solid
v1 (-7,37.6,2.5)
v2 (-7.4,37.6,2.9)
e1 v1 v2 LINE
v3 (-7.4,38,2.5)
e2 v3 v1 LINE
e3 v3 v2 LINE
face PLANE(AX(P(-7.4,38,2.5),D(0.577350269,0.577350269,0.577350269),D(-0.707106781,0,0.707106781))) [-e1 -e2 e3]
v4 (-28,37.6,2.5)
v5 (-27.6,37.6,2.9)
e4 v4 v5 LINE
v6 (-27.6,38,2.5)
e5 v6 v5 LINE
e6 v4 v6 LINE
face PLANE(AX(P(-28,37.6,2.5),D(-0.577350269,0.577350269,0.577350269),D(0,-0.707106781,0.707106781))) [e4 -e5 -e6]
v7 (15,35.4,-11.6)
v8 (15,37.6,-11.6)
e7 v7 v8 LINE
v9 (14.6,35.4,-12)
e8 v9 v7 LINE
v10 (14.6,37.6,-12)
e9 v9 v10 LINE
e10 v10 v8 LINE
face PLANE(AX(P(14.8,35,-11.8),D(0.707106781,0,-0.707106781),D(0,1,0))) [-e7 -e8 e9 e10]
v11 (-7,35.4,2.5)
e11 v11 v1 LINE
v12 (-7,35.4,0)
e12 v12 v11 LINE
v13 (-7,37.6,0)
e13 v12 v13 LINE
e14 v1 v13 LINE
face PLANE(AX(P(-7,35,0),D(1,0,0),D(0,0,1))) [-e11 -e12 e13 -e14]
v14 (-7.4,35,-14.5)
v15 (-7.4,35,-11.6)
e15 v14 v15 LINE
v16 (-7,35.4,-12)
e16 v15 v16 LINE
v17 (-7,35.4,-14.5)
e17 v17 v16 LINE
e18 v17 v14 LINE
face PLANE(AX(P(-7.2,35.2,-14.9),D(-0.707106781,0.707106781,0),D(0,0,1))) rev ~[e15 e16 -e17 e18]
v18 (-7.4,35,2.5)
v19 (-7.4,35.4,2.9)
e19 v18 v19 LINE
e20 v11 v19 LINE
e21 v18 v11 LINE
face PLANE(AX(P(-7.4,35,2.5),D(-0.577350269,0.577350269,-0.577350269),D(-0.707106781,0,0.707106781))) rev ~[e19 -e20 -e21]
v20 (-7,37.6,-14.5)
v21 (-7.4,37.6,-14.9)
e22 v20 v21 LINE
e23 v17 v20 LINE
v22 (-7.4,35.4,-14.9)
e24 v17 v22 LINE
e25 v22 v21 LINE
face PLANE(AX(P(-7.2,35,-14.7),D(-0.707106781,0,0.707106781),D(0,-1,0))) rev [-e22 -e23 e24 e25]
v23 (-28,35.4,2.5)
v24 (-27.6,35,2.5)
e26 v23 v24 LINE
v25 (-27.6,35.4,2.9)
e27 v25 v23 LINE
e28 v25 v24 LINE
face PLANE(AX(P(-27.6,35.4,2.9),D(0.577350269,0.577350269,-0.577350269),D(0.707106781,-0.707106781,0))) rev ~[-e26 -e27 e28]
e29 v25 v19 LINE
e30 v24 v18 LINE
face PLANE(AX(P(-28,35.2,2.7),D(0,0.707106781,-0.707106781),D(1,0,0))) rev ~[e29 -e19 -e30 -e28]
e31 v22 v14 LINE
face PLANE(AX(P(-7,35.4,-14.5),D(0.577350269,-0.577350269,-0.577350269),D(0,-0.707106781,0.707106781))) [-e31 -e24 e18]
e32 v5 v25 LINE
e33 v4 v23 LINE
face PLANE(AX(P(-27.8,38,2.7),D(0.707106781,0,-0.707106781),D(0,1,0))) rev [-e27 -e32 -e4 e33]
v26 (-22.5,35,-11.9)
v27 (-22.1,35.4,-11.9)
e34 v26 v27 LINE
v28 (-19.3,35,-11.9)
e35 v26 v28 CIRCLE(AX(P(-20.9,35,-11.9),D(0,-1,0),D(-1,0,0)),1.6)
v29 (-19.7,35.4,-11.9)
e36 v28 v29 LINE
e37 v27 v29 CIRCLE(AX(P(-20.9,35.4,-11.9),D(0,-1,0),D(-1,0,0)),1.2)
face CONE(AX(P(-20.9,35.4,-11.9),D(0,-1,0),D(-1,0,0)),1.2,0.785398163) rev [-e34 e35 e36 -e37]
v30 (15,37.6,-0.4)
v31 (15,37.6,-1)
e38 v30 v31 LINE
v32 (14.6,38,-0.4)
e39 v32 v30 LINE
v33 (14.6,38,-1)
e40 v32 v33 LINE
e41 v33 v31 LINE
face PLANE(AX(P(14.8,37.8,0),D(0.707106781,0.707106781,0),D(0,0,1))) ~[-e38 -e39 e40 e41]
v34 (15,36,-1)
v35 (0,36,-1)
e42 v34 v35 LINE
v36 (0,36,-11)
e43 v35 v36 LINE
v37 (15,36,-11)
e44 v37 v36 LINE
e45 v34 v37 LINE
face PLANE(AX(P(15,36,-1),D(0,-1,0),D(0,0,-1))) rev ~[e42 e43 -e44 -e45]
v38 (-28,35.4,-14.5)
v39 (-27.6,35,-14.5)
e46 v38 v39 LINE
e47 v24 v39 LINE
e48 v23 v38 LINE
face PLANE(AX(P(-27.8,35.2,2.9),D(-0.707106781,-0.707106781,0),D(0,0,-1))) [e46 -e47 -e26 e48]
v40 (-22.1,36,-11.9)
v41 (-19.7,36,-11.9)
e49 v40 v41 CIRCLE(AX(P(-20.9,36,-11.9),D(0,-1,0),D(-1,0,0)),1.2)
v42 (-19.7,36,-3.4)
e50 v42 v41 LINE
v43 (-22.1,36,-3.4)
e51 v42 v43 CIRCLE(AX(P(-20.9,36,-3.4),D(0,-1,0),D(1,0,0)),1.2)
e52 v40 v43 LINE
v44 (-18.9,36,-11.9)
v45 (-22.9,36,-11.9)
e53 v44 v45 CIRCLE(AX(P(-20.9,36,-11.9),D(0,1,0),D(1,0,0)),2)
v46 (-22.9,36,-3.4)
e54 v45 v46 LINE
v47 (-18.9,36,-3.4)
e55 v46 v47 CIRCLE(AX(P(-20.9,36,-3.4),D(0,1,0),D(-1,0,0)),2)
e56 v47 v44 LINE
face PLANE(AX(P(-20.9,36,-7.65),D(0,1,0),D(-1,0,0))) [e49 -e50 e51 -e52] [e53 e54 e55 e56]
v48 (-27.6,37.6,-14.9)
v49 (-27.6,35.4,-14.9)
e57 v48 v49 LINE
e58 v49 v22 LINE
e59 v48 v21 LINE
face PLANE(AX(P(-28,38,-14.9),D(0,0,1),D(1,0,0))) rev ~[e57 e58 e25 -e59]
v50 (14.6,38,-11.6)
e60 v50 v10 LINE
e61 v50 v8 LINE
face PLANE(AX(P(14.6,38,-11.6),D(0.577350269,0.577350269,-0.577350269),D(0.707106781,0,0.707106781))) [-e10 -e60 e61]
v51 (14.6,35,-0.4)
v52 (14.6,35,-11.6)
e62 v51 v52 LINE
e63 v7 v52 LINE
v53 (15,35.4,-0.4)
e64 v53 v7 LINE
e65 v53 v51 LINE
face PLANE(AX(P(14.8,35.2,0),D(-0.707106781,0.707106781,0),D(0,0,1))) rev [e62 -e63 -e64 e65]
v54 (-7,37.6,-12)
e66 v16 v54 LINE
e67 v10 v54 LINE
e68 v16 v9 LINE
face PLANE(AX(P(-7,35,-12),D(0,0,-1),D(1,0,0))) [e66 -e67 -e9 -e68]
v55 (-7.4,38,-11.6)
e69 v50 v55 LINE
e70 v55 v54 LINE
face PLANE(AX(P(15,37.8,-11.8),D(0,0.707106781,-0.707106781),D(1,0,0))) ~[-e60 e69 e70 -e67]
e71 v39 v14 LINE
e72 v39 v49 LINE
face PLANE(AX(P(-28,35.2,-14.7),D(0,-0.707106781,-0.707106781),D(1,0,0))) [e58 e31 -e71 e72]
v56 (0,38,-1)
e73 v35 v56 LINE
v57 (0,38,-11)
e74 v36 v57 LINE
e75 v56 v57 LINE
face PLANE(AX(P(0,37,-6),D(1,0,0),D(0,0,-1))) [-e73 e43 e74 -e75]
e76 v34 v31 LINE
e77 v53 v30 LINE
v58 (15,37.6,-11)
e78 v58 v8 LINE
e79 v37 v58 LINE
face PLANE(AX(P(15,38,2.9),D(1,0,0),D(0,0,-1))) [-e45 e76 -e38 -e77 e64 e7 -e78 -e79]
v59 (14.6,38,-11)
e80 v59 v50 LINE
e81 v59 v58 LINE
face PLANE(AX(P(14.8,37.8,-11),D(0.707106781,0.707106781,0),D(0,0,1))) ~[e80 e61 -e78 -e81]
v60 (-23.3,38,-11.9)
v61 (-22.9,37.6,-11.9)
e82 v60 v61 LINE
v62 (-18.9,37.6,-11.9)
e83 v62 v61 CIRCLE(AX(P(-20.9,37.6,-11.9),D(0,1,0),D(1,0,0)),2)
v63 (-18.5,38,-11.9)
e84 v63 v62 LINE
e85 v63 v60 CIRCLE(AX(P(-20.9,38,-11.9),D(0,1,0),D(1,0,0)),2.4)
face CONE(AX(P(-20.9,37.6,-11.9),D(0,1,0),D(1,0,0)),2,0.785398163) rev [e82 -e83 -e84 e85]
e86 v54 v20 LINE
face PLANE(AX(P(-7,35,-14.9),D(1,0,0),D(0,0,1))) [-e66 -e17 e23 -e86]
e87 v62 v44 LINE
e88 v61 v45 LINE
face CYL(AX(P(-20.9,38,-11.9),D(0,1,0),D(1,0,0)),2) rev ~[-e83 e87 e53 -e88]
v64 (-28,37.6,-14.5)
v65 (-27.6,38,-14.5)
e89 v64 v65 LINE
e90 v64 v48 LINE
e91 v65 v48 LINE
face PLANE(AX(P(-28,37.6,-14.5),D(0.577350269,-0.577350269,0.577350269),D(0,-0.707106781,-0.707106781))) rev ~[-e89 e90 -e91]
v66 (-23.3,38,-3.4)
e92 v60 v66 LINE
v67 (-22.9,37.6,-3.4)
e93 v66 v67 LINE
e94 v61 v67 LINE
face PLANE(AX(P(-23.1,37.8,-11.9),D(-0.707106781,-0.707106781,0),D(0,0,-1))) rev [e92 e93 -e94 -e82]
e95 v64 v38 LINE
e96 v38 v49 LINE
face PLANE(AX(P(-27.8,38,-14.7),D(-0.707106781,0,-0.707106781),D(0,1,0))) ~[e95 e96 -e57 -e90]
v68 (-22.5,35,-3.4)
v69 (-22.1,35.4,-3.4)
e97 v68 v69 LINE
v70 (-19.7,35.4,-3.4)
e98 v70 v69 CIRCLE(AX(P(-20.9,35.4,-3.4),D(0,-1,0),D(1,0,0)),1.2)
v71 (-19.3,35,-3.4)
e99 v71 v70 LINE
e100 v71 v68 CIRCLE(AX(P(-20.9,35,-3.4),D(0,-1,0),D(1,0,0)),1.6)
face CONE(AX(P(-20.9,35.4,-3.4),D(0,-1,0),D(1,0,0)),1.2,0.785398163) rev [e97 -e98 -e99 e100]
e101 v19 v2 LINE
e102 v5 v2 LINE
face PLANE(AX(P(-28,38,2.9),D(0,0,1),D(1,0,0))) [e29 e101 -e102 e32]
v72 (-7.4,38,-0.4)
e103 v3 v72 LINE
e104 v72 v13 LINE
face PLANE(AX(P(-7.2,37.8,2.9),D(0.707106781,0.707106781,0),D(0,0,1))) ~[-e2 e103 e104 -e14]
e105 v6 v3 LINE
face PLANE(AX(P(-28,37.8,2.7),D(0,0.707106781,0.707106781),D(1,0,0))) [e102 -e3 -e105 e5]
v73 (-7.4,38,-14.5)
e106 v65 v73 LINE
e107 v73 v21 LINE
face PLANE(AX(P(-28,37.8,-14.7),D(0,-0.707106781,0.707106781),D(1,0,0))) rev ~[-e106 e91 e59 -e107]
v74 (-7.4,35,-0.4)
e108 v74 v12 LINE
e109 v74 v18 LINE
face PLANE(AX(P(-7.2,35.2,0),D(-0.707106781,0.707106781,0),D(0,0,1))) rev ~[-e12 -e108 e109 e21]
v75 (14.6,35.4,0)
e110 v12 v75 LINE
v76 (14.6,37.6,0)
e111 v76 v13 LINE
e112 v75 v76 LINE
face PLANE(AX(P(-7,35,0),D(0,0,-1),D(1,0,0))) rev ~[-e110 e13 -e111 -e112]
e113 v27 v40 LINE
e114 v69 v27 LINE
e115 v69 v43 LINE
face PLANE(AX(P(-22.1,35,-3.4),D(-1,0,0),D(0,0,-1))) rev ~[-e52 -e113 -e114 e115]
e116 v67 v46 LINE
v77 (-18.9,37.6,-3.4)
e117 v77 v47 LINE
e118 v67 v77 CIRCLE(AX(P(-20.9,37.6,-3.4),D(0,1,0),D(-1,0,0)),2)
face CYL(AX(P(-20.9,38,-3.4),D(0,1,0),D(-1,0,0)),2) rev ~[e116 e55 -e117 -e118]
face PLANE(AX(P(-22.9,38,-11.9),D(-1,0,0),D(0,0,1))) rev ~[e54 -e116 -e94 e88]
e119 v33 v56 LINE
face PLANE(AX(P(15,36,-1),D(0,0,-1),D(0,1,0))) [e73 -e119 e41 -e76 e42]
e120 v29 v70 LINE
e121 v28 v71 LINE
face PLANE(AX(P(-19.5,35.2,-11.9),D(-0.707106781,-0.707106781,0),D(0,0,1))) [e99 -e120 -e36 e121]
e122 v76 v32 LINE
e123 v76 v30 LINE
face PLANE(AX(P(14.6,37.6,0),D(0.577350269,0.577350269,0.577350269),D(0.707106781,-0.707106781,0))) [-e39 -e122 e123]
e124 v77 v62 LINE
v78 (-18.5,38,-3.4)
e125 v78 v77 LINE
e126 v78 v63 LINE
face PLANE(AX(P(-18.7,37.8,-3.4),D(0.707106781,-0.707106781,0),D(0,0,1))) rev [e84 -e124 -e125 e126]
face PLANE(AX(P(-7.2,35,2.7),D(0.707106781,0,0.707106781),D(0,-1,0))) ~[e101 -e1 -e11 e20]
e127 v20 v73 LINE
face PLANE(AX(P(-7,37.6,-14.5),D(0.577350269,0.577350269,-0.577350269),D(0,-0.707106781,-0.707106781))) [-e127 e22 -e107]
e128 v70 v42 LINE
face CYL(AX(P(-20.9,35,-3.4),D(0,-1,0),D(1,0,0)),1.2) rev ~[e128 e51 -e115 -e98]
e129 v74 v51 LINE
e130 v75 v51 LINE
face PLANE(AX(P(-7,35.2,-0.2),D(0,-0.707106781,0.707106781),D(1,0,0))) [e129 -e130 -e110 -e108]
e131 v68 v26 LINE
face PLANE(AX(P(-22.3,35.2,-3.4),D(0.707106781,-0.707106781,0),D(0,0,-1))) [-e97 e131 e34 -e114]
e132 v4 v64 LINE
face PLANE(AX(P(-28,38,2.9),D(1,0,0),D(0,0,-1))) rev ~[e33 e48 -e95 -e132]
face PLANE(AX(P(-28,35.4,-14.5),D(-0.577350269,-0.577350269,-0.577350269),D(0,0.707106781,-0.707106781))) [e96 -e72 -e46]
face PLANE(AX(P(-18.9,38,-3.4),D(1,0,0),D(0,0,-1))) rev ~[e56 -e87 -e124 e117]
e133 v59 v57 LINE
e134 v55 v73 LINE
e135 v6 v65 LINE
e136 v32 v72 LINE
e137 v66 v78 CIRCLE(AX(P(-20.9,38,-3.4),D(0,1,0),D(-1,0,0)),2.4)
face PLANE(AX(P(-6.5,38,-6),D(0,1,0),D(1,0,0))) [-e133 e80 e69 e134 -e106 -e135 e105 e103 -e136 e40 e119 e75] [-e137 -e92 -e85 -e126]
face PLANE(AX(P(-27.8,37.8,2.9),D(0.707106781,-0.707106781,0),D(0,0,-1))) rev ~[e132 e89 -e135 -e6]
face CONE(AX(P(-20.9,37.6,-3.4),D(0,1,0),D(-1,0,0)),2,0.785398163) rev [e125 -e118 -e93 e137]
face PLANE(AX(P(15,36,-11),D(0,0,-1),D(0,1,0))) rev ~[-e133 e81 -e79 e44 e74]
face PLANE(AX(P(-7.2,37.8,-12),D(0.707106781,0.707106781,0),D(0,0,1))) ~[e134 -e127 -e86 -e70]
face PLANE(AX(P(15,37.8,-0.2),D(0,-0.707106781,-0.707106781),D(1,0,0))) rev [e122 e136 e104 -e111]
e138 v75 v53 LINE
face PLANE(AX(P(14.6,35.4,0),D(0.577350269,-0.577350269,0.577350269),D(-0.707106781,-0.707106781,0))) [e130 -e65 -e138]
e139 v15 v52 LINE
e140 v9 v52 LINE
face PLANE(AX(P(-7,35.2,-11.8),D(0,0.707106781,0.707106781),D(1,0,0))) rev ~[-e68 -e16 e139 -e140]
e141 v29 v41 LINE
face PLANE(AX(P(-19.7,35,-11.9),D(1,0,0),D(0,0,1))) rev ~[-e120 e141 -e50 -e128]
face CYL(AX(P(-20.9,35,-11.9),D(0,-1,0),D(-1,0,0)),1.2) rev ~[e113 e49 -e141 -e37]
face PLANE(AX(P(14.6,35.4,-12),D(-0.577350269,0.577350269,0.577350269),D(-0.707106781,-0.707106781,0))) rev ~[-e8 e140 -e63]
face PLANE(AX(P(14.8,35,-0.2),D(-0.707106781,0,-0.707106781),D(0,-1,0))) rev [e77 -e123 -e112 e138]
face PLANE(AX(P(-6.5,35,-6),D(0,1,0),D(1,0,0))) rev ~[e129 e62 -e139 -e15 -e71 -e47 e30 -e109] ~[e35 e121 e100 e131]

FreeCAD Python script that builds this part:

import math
import FreeCAD as App
import Part
import Sketcher


def edges_at(feature, points):
    """Names of the edges that pass closest to the given points."""
    edges = feature.Shape.Edges
    near = lambda p: min(range(len(edges)), key=lambda i: edges[i].distToShape(Part.Vertex(*p))[0])
    return sorted({f"Edge{near(p) + 1}" for p in points})

doc = App.newDocument("Part")
params = doc.addObject("Spreadsheet::Sheet", "Params")
for row, (alias, value) in enumerate([
    ("sketch1_width", "43 mm"),
    ("sketch1_height", "17.8 mm"),
    ("pad1_length", "3 mm"),
    ("sketch2_width", "22 mm"),
    ("sketch2_height", "2.9 mm"),
    ("sketch3_width", "22 mm"),
    ("sketch3_height", "2.9 mm"),
    ("sketch4_radius", "2 mm"),
    ("sketch4_height", "8.5 mm"),
    ("pocket3_length", "2 mm"),
    ("sketch5_radius", "1.2 mm"),
    ("sketch5_height", "8.5 mm"),
    ("sketch6_width", "2 mm"),
    ("sketch6_height", "10 mm"),
    ("pocket5_length", "15 mm"),
    ("chamfer_size", "0.4 mm"),
], start=1):
    params.set(f"A{row}", alias)
    params.set(f"B{row}", "=" + value)
    params.setAlias(f"B{row}", alias)

body = doc.addObject("PartDesign::Body", "Body")

# Sketch on XZ plane
sketch1 = doc.addObject("Sketcher::SketchObject", "Sketch")
body.addObject(sketch1)
sketch1.AttachmentSupport = (doc.XZ_Plane, [""])
sketch1.MapMode = "FlatFace"
sketch1.AttachmentOffset = App.Placement(App.Vector(0, 0, -38), App.Rotation())
sketch1.addGeometry([
    Part.LineSegment(App.Vector(-28, -14.9, 0), App.Vector(-28, 2.9, 0)),
    Part.LineSegment(App.Vector(-28, 2.9, 0), App.Vector(15, 2.9, 0)),
    Part.LineSegment(App.Vector(15, 2.9, 0), App.Vector(15, -14.9, 0)),
    Part.LineSegment(App.Vector(15, -14.9, 0), App.Vector(-28, -14.9, 0)),
], False)
sketch1.addConstraint([
    Sketcher.Constraint("Coincident", 0, 2, 1, 1),
    Sketcher.Constraint("Coincident", 1, 2, 2, 1),
    Sketcher.Constraint("Coincident", 2, 2, 3, 1),
    Sketcher.Constraint("Coincident", 3, 2, 0, 1),
    Sketcher.Constraint("Vertical", 0),
    Sketcher.Constraint("Horizontal", 1),
    Sketcher.Constraint("Vertical", 2),
    Sketcher.Constraint("Horizontal", 3),
    Sketcher.Constraint("DistanceX", 1, 1, 1, 2, 43.0),
    Sketcher.Constraint("DistanceY", 0, 1, 0, 2, 17.8),
    Sketcher.Constraint("DistanceX", 0, 2, -1, 1, 28.0),
    Sketcher.Constraint("DistanceY", -1, 1, 0, 2, 2.9),
])
sketch1.setExpression("Constraints[8]", "Params.sketch1_width")
sketch1.setExpression("Constraints[9]", "Params.sketch1_height")
pad1 = doc.addObject("PartDesign::Pad", "Pad")
body.addObject(pad1)
pad1.Profile = sketch1
pad1.setExpression("Length", "Params.pad1_length")

# Sketch on XZ plane
sketch2 = doc.addObject("Sketcher::SketchObject", "Sketch001")
body.addObject(sketch2)
sketch2.AttachmentSupport = (doc.XZ_Plane, [""])
sketch2.MapMode = "FlatFace"
sketch2.AttachmentOffset = App.Placement(App.Vector(0, 0, -35), App.Rotation())
sketch2.addGeometry([
    Part.LineSegment(App.Vector(-7, 2.9, 0), App.Vector(-7, 0, 0)),
    Part.LineSegment(App.Vector(-7, 0, 0), App.Vector(15, 0, 0)),
    Part.LineSegment(App.Vector(15, 0, 0), App.Vector(15, 2.9, 0)),
    Part.LineSegment(App.Vector(15, 2.9, 0), App.Vector(-7, 2.9, 0)),
], False)
sketch2.addConstraint([
    Sketcher.Constraint("Coincident", 0, 2, 1, 1),
    Sketcher.Constraint("Coincident", 1, 2, 2, 1),
    Sketcher.Constraint("Coincident", 2, 2, 3, 1),
    Sketcher.Constraint("Coincident", 3, 2, 0, 1),
    Sketcher.Constraint("Vertical", 0),
    Sketcher.Constraint("Horizontal", 1),
    Sketcher.Constraint("Vertical", 2),
    Sketcher.Constraint("Horizontal", 3),
    Sketcher.Constraint("PointOnObject", 0, 2, -1),
    Sketcher.Constraint("DistanceX", 1, 1, 1, 2, 22.0),
    Sketcher.Constraint("DistanceY", 0, 2, 0, 1, 2.9),
    Sketcher.Constraint("DistanceX", 0, 2, -1, 1, 7.0),
])
sketch2.setExpression("Constraints[9]", "Params.sketch2_width")
sketch2.setExpression("Constraints[10]", "Params.sketch2_height")
pocket1 = doc.addObject("PartDesign::Pocket", "Pocket")
body.addObject(pocket1)
pocket1.Profile = sketch2
pocket1.Type = "ThroughAll"

# Sketch on XZ plane
sketch3 = doc.addObject("Sketcher::SketchObject", "Sketch002")
body.addObject(sketch3)
sketch3.AttachmentSupport = (doc.XZ_Plane, [""])
sketch3.MapMode = "FlatFace"
sketch3.AttachmentOffset = App.Placement(App.Vector(0, 0, -35), App.Rotation())
sketch3.addGeometry([
    Part.LineSegment(App.Vector(-7, -12, 0), App.Vector(-7, -14.9, 0)),
    Part.LineSegment(App.Vector(-7, -14.9, 0), App.Vector(15, -14.9, 0)),
    Part.LineSegment(App.Vector(15, -14.9, 0), App.Vector(15, -12, 0)),
    Part.LineSegment(App.Vector(15, -12, 0), App.Vector(-7, -12, 0)),
], False)
sketch3.addConstraint([
    Sketcher.Constraint("Coincident", 0, 2, 1, 1),
    Sketcher.Constraint("Coincident", 1, 2, 2, 1),
    Sketcher.Constraint("Coincident", 2, 2, 3, 1),
    Sketcher.Constraint("Coincident", 3, 2, 0, 1),
    Sketcher.Constraint("Vertical", 0),
    Sketcher.Constraint("Horizontal", 1),
    Sketcher.Constraint("Vertical", 2),
    Sketcher.Constraint("Horizontal", 3),
    Sketcher.Constraint("DistanceX", 1, 1, 1, 2, 22.0),
    Sketcher.Constraint("DistanceY", 0, 2, 0, 1, 2.9),
    Sketcher.Constraint("DistanceX", 0, 2, -1, 1, 7.0),
    Sketcher.Constraint("DistanceY", 2, 2, -1, 1, 12.0),
])
sketch3.setExpression("Constraints[8]", "Params.sketch3_width")
sketch3.setExpression("Constraints[9]", "Params.sketch3_height")
pocket2 = doc.addObject("PartDesign::Pocket", "Pocket001")
body.addObject(pocket2)
pocket2.Profile = sketch3
pocket2.Type = "ThroughAll"

# Sketch on XZ plane
sketch4 = doc.addObject("Sketcher::SketchObject", "Sketch003")
body.addObject(sketch4)
sketch4.AttachmentSupport = (doc.XZ_Plane, [""])
sketch4.MapMode = "FlatFace"
sketch4.AttachmentOffset = App.Placement(App.Vector(0, 0, -38), App.Rotation())
sketch4.addGeometry([
    Part.LineSegment(App.Vector(-22.9, -11.9, 0), App.Vector(-22.9, -3.4, 0)),
    Part.ArcOfCircle(Part.Circle(App.Vector(-20.9, -3.4, 0), App.Vector(0, 0, 1), 2), math.radians(0), math.radians(180)),
    Part.LineSegment(App.Vector(-18.9, -3.4, 0), App.Vector(-18.9, -11.9, 0)),
    Part.ArcOfCircle(Part.Circle(App.Vector(-20.9, -11.9, 0), App.Vector(0, 0, 1), 2), math.radians(180), math.radians(360)),
], False)
sketch4.addConstraint([
    Sketcher.Constraint("Tangent", 0, 2, 1, 2),
    Sketcher.Constraint("Tangent", 1, 1, 2, 1),
    Sketcher.Constraint("Tangent", 2, 2, 3, 2),
    Sketcher.Constraint("Tangent", 3, 1, 0, 1),
    Sketcher.Constraint("Vertical", 0),
    Sketcher.Constraint("Vertical", 2),
    Sketcher.Constraint("Radius", 1, 2.0),
    Sketcher.Constraint("DistanceY", 0, 1, 0, 2, 8.5),
    Sketcher.Constraint("DistanceX", 1, 3, -1, 1, 20.9),
    Sketcher.Constraint("DistanceY", 1, 3, -1, 1, 3.4),
])
sketch4.setExpression("Constraints[6]", "Params.sketch4_radius")
sketch4.setExpression("Constraints[7]", "Params.sketch4_height")
pocket3 = doc.addObject("PartDesign::Pocket", "Pocket002")
body.addObject(pocket3)
pocket3.Profile = sketch4
pocket3.setExpression("Length", "Params.pocket3_length")
pocket3.Reversed = True

# Sketch on XZ plane
sketch5 = doc.addObject("Sketcher::SketchObject", "Sketch004")
body.addObject(sketch5)
sketch5.AttachmentSupport = (doc.XZ_Plane, [""])
sketch5.MapMode = "FlatFace"
sketch5.AttachmentOffset = App.Placement(App.Vector(0, 0, -35), App.Rotation())
sketch5.addGeometry([
    Part.LineSegment(App.Vector(-22.1, -3.4, 0), App.Vector(-22.1, -11.9, 0)),
    Part.ArcOfCircle(Part.Circle(App.Vector(-20.9, -11.9, 0), App.Vector(0, 0, 1), 1.2), math.radians(180), math.radians(360)),
    Part.LineSegment(App.Vector(-19.7, -11.9, 0), App.Vector(-19.7, -3.4, 0)),
    Part.ArcOfCircle(Part.Circle(App.Vector(-20.9, -3.4, 0), App.Vector(0, 0, 1), 1.2), math.radians(0), math.radians(180)),
], False)
sketch5.addConstraint([
    Sketcher.Constraint("Tangent", 0, 2, 1, 1),
    Sketcher.Constraint("Tangent", 1, 2, 2, 1),
    Sketcher.Constraint("Tangent", 2, 2, 3, 1),
    Sketcher.Constraint("Tangent", 3, 2, 0, 1),
    Sketcher.Constraint("Vertical", 0),
    Sketcher.Constraint("Vertical", 2),
    Sketcher.Constraint("Radius", 1, 1.2),
    Sketcher.Constraint("DistanceY", 0, 2, 0, 1, 8.5),
    Sketcher.Constraint("DistanceX", 1, 3, -1, 1, 20.9),
    Sketcher.Constraint("DistanceY", 1, 3, -1, 1, 11.9),
])
sketch5.setExpression("Constraints[6]", "Params.sketch5_radius")
sketch5.setExpression("Constraints[7]", "Params.sketch5_height")
pocket4 = doc.addObject("PartDesign::Pocket", "Pocket003")
body.addObject(pocket4)
pocket4.Profile = sketch5
pocket4.Type = "ThroughAll"

# Sketch on YZ plane
sketch6 = doc.addObject("Sketcher::SketchObject", "Sketch005")
body.addObject(sketch6)
sketch6.AttachmentSupport = (doc.YZ_Plane, [""])
sketch6.MapMode = "FlatFace"
sketch6.AttachmentOffset = App.Placement(App.Vector(0, 0, 15), App.Rotation())
sketch6.addGeometry([
    Part.LineSegment(App.Vector(38, -1, 0), App.Vector(36, -1, 0)),
    Part.LineSegment(App.Vector(36, -1, 0), App.Vector(36, -11, 0)),
    Part.LineSegment(App.Vector(36, -11, 0), App.Vector(38, -11, 0)),
    Part.LineSegment(App.Vector(38, -11, 0), App.Vector(38, -1, 0)),
], False)
sketch6.addConstraint([
    Sketcher.Constraint("Coincident", 0, 2, 1, 1),
    Sketcher.Constraint("Coincident", 1, 2, 2, 1),
    Sketcher.Constraint("Coincident", 2, 2, 3, 1),
    Sketcher.Constraint("Coincident", 3, 2, 0, 1),
    Sketcher.Constraint("Horizontal", 0),
    Sketcher.Constraint("Vertical", 1),
    Sketcher.Constraint("Horizontal", 2),
    Sketcher.Constraint("Vertical", 3),
    Sketcher.Constraint("DistanceX", 0, 2, 0, 1, 2.0),
    Sketcher.Constraint("DistanceY", 1, 2, 1, 1, 10.0),
    Sketcher.Constraint("DistanceX", -1, 1, 0, 2, 36.0),
    Sketcher.Constraint("DistanceY", 0, 2, -1, 1, 1.0),
])
sketch6.setExpression("Constraints[8]", "Params.sketch6_width")
sketch6.setExpression("Constraints[9]", "Params.sketch6_height")
pocket5 = doc.addObject("PartDesign::Pocket", "Pocket004")
body.addObject(pocket5)
pocket5.Profile = sketch6
pocket5.setExpression("Length", "Params.pocket5_length")
doc.recompute()

chamfer = doc.addObject("PartDesign::Chamfer", "Chamfer")
body.addObject(chamfer)
chamfer.Base = (pocket5, edges_at(pocket5, [
    (15, 38, -0.5),
    (15, 35, -6),
    (-7, 36.5, 2.9),
    (4, 38, 0),
    (15, 36.5, 0),
    (-7, 38, 1.45),
    (-7, 35, 1.45),
    (4, 35, 0),
    (-17.5, 38, -14.9),
    (-17.5, 35, -14.9),
    (15, 36.5, -12),
    (-7, 38, -13.45),
    (-7, 36.5, -14.9),
    (4, 38, -12),
    (4, 35, -12),
    (-7, 35, -13.45),
    (-20.9, 38, -13.9),
    (-22.9, 38, -7.65),
    (-20.9, 38, -1.4),
    (-28, 35, -6),
    (-18.9, 38, -7.65),
    (-17.5, 38, 2.9),
    (-28, 38, -6),
    (-20.9, 35, -2.2),
    (-22.1, 35, -7.65),
    (-20.9, 35, -13.1),
    (-19.7, 35, -7.65),
    (-28, 36.5, -14.9),
    (15, 38, -11.5),
    (-28, 36.5, 2.9),
    (-17.5, 35, 2.9),
]))
chamfer.setExpression("Size", "Params.chamfer_size")

doc.recompute()
